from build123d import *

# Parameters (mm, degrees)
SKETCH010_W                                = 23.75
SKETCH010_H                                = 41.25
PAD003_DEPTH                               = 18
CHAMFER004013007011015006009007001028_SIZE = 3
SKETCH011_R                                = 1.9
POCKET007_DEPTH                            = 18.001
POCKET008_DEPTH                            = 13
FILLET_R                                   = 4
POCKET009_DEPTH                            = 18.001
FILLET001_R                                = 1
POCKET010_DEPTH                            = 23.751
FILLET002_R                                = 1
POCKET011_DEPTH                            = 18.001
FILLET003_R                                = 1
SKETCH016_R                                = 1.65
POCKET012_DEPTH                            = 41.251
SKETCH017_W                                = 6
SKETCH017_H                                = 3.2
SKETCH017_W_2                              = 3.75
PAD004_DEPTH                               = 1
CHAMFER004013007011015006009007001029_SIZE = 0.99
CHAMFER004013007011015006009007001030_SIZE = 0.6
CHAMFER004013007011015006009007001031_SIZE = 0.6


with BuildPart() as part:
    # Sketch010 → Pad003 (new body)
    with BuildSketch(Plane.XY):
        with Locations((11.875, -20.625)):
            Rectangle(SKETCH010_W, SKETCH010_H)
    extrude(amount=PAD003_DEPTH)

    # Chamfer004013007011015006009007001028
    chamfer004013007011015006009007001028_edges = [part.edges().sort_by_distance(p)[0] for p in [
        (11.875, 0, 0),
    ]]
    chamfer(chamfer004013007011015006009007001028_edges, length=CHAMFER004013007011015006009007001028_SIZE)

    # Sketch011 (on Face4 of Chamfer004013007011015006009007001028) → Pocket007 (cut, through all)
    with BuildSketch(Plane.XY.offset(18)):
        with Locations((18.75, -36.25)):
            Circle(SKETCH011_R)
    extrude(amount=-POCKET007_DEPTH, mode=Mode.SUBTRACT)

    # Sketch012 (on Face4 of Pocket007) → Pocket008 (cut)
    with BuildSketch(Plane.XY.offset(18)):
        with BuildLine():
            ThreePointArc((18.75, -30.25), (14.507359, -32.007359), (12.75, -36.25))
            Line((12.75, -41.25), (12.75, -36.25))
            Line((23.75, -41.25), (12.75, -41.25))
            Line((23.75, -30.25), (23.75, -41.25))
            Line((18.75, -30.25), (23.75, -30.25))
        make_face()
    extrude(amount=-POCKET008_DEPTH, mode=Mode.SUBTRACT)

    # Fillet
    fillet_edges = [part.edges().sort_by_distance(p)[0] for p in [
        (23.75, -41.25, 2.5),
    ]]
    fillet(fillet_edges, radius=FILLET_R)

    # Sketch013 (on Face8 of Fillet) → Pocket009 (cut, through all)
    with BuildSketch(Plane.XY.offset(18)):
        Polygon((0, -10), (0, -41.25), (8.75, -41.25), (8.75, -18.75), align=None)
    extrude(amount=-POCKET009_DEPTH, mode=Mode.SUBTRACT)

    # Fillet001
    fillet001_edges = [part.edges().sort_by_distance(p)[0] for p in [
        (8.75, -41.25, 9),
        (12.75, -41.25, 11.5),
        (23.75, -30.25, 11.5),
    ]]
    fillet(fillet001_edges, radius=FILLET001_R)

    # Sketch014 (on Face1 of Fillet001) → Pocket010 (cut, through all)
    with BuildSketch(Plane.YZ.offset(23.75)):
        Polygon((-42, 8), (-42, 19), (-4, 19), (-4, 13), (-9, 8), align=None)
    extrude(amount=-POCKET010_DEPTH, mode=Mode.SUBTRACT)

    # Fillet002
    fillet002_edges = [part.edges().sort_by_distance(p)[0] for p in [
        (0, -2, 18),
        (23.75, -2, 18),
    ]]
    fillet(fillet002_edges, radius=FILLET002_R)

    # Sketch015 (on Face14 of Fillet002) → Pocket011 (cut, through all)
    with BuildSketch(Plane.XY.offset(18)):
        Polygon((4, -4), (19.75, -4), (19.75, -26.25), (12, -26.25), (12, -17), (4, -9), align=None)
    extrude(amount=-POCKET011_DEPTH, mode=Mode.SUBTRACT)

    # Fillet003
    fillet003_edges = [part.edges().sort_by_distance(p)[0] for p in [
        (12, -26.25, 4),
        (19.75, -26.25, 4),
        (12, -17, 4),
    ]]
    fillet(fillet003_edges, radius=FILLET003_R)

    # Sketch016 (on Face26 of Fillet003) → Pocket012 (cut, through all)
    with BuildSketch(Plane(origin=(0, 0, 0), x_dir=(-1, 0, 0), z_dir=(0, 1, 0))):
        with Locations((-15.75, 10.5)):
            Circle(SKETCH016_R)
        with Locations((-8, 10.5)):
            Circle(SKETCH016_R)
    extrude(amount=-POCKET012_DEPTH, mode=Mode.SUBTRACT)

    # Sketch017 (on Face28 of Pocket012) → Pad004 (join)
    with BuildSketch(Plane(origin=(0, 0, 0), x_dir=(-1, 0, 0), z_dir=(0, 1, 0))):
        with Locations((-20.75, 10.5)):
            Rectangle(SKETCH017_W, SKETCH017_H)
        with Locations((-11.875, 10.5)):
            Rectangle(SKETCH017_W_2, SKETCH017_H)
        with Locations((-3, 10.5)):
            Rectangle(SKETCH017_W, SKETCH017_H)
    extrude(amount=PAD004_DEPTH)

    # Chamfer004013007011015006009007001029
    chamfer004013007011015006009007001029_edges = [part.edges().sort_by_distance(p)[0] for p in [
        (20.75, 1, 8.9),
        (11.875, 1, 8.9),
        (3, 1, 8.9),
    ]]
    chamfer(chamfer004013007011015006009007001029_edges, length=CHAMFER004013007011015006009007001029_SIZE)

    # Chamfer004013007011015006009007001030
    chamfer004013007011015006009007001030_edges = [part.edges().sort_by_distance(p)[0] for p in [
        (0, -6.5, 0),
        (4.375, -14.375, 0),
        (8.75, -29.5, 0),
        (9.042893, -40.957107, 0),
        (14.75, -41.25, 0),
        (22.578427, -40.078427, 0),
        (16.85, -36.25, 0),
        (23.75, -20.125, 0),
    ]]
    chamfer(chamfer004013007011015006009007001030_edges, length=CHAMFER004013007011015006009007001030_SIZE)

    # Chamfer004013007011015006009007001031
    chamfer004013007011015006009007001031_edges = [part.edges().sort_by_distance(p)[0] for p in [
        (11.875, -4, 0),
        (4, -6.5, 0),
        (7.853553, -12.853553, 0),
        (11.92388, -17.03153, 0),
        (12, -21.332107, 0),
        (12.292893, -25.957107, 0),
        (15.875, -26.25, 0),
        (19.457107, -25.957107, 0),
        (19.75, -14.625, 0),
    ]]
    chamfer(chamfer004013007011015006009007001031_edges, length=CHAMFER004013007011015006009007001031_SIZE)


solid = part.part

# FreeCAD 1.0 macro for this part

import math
import FreeCAD as App
import Part
import Sketcher
Q = App.Units.Quantity


def edges_at(feature, points):
    """Names of the edges that pass closest to the given points."""
    edges = feature.Shape.Edges
    near = lambda p: min(range(len(edges)), key=lambda i: edges[i].distToShape(Part.Vertex(*p))[0])
    return sorted({f"Edge{near(p) + 1}" for p in points})

doc = App.newDocument("Part")
body = doc.addObject("PartDesign::Body", "Body")

# Sketch on XY plane
sketch1 = body.newObject("Sketcher::SketchObject", "Sketch")
sketch1.AttachmentSupport = (doc.getObject("XY_Plane"), [""])
sketch1.MapMode = "FlatFace"
sketch1.addGeometry([
    Part.LineSegment(App.Vector(0, 0, 0), App.Vector(0, -41.25, 0)),
    Part.LineSegment(App.Vector(0, -41.25, 0), App.Vector(23.75, -41.25, 0)),
    Part.LineSegment(App.Vector(23.75, -41.25, 0), App.Vector(23.75, 0, 0)),
    Part.LineSegment(App.Vector(23.75, 0, 0), App.Vector(0, 0, 0)),
], False)
sketch1.addConstraint([
    Sketcher.Constraint("Coincident", 0, 2, 1, 1),
    Sketcher.Constraint("Coincident", 1, 2, 2, 1),
    Sketcher.Constraint("Coincident", 2, 2, 3, 1),
    Sketcher.Constraint("Coincident", 3, 2, 0, 1),
    Sketcher.Constraint("Vertical", 0),
    Sketcher.Constraint("Horizontal", 1),
    Sketcher.Constraint("Vertical", 2),
    Sketcher.Constraint("Horizontal", 3),
    Sketcher.Constraint("Coincident", 3, 2, -1, 1),
    Sketcher.Constraint("DistanceX", 1, 1, 1, 2, Q("23.75 mm")),
    Sketcher.Constraint("DistanceY", 0, 2, 0, 1, Q("41.25 mm")),
])
pad1 = body.newObject("PartDesign::Pad", "Pad")
pad1.Profile = sketch1
pad1.Length = 18
doc.recompute()

chamfer = body.newObject("PartDesign::Chamfer", "Chamfer")
chamfer.Base = (pad1, edges_at(pad1, [(11.875, 0, 0)]))
chamfer.Size = 3

# Sketch on XY plane
sketch2 = body.newObject("Sketcher::SketchObject", "Sketch001")
sketch2.AttachmentSupport = (doc.getObject("XY_Plane"), [""])
sketch2.MapMode = "FlatFace"
sketch2.AttachmentOffset = App.Placement(App.Vector(0, 0, 18), App.Rotation())
sketch2.addGeometry(Part.Circle(App.Vector(18.75, -36.25, 0), App.Vector(0, 0, 1), 1.9), False)
sketch2.addConstraint([
    Sketcher.Constraint("Diameter", 0, Q("3.8 mm")),
    Sketcher.Constraint("DistanceX", -1, 1, 0, 3, Q("18.75 mm")),
    Sketcher.Constraint("DistanceY", 0, 3, -1, 1, Q("36.25 mm")),
])
pocket1 = body.newObject("PartDesign::Pocket", "Pocket")
pocket1.Profile = sketch2
pocket1.Type = "ThroughAll"

# Sketch on XY plane
sketch3 = body.newObject("Sketcher::SketchObject", "Sketch002")
sketch3.AttachmentSupport = (doc.getObject("XY_Plane"), [""])
sketch3.MapMode = "FlatFace"
sketch3.AttachmentOffset = App.Placement(App.Vector(0, 0, 18), App.Rotation())
sketch3.addGeometry([
    Part.ArcOfCircle(Part.Circle(App.Vector(18.749999, -36.249999, 0), App.Vector(0, 0, 1), 5.999999), math.radians(89.99999), math.radians(180.00001)),  # 0
    Part.LineSegment(App.Vector(12.75, -36.25, 0), App.Vector(12.75, -41.25, 0)),  # 1
    Part.LineSegment(App.Vector(12.75, -41.25, 0), App.Vector(23.75, -41.25, 0)),  # 2
    Part.LineSegment(App.Vector(23.75, -41.25, 0), App.Vector(23.75, -30.25, 0)),  # 3
    Part.LineSegment(App.Vector(23.75, -30.25, 0), App.Vector(18.75, -30.25, 0)),  # 4
], False)
sketch3.addConstraint([
    Sketcher.Constraint("Tangent", 0, 2, 1, 1),
    Sketcher.Constraint("Coincident", 1, 2, 2, 1),
    Sketcher.Constraint("Coincident", 2, 2, 3, 1),
    Sketcher.Constraint("Coincident", 3, 2, 4, 1),
    Sketcher.Constraint("Tangent", 4, 2, 0, 1),
    Sketcher.Constraint("Vertical", 1),
    Sketcher.Constraint("Horizontal", 2),
    Sketcher.Constraint("Vertical", 3),
    Sketcher.Constraint("Horizontal", 4),
    Sketcher.Constraint("Equal", 4, 1),
    Sketcher.Constraint("Radius", 0, Q("5.999999 mm")),
    Sketcher.Constraint("DistanceX", 2, 1, 2, 2, Q("11 mm")),
    Sketcher.Constraint("DistanceX", -1, 1, 0, 3, Q("18.749999 mm")),
    Sketcher.Constraint("DistanceY", 0, 3, -1, 1, Q("36.249999 mm")),
])
pocket2 = body.newObject("PartDesign::Pocket", "Pocket001")
pocket2.Profile = sketch3
pocket2.Length = 13
doc.recompute()

fillet = body.newObject("PartDesign::Fillet", "Fillet")
fillet.Base = (pocket2, edges_at(pocket2, [(23.75, -41.25, 2.5)]))
fillet.Radius = 4

# Sketch on XY plane
sketch4 = body.newObject("Sketcher::SketchObject", "Sketch003")
sketch4.AttachmentSupport = (doc.getObject("XY_Plane"), [""])
sketch4.MapMode = "FlatFace"
sketch4.AttachmentOffset = App.Placement(App.Vector(0, 0, 18), App.Rotation())
sketch4.addGeometry([
    Part.LineSegment(App.Vector(0, -10, 0), App.Vector(0, -41.25, 0)),
    Part.LineSegment(App.Vector(0, -41.25, 0), App.Vector(8.75, -41.25, 0)),
    Part.LineSegment(App.Vector(8.75, -41.25, 0), App.Vector(8.75, -18.75, 0)),
    Part.LineSegment(App.Vector(8.75, -18.75, 0), App.Vector(0, -10, 0)),
], False)
sketch4.addConstraint([
    Sketcher.Constraint("Coincident", 0, 2, 1, 1),
    Sketcher.Constraint("Coincident", 1, 2, 2, 1),
    Sketcher.Constraint("Coincident", 2, 2, 3, 1),
    Sketcher.Constraint("Coincident", 3, 2, 0, 1),
    Sketcher.Constraint("Vertical", 0),
    Sketcher.Constraint("Horizontal", 1),
    Sketcher.Constraint("Vertical", 2),
    Sketcher.Constraint("PointOnObject", 0, 2, -2),
    Sketcher.Constraint("Angle", 3, Q("135 deg")),
    Sketcher.Constraint("DistanceY", 2, 1, 2, 2, Q("22.5 mm")),
    Sketcher.Constraint("DistanceY", 3, 2, -1, 1, Q("10 mm")),
    Sketcher.Constraint("DistanceX", 1, 1, 1, 2, Q("8.75 mm")),
])
pocket3 = body.newObject("PartDesign::Pocket", "Pocket002")
pocket3.Profile = sketch4
pocket3.Type = "ThroughAll"
doc.recompute()

fillet2 = body.newObject("PartDesign::Fillet", "Fillet001")
fillet2.Base = (pocket3, edges_at(pocket3, [(8.75, -41.25, 9), (12.75, -41.25, 11.5), (23.75, -30.25, 11.5)]))
fillet2.Radius = 1

# Sketch on YZ plane
sketch5 = body.newObject("Sketcher::SketchObject", "Sketch004")
sketch5.AttachmentSupport = (doc.getObject("YZ_Plane"), [""])
sketch5.MapMode = "FlatFace"
sketch5.AttachmentOffset = App.Placement(App.Vector(0, 0, 23.75), App.Rotation())
sketch5.addGeometry([
    Part.LineSegment(App.Vector(-42, 19, 0), App.Vector(-42, 8, 0)),  # 0
    Part.LineSegment(App.Vector(-42, 8, 0), App.Vector(-9, 8, 0)),  # 1
    Part.LineSegment(App.Vector(-9, 8, 0), App.Vector(-4, 13, 0)),  # 2
    Part.LineSegment(App.Vector(-4, 13, 0), App.Vector(-4, 19, 0)),  # 3
    Part.LineSegment(App.Vector(-4, 19, 0), App.Vector(-42, 19, 0)),  # 4
], False)
sketch5.addConstraint([
    Sketcher.Constraint("Coincident", 0, 2, 1, 1),
    Sketcher.Constraint("Coincident", 1, 2, 2, 1),
    Sketcher.Constraint("Coincident", 2, 2, 3, 1),
    Sketcher.Constraint("Coincident", 3, 2, 4, 1),
    Sketcher.Constraint("Coincident", 4, 2, 0, 1),
    Sketcher.Constraint("Vertical", 0),
    Sketcher.Constraint("Horizontal", 1),
    Sketcher.Constraint("Vertical", 3),
    Sketcher.Constraint("Horizontal", 4),
    Sketcher.Constraint("DistanceX", 1, 1, 1, 2, Q("33 mm")),
    Sketcher.Constraint("DistanceX", 4, 2, 4, 1, Q("38 mm")),
    Sketcher.Constraint("DistanceY", 0, 2, 0, 1, Q("11 mm")),
    Sketcher.Constraint("DistanceY", 3, 1, 3, 2, Q("6 mm")),
    Sketcher.Constraint("DistanceX", 0, 2, -1, 1, Q("42 mm")),
    Sketcher.Constraint("DistanceY", -1, 1, 0, 2, Q("8 mm")),
])
pocket4 = body.newObject("PartDesign::Pocket", "Pocket003")
pocket4.Profile = sketch5
pocket4.Type = "ThroughAll"
doc.recompute()

fillet3 = body.newObject("PartDesign::Fillet", "Fillet002")
fillet3.Base = (pocket4, edges_at(pocket4, [(0, -2, 18), (23.75, -2, 18)]))
fillet3.Radius = 1

# Sketch on XY plane
sketch6 = body.newObject("Sketcher::SketchObject", "Sketch005")
sketch6.AttachmentSupport = (doc.getObject("XY_Plane"), [""])
sketch6.MapMode = "FlatFace"
sketch6.AttachmentOffset = App.Placement(App.Vector(0, 0, 18), App.Rotation())
sketch6.addGeometry([
    Part.LineSegment(App.Vector(19.75, -4, 0), App.Vector(4, -4, 0)),  # 0
    Part.LineSegment(App.Vector(4, -4, 0), App.Vector(4, -9, 0)),  # 1
    Part.LineSegment(App.Vector(4, -9, 0), App.Vector(12, -17, 0)),  # 2
    Part.LineSegment(App.Vector(12, -17, 0), App.Vector(12, -26.25, 0)),  # 3
    Part.LineSegment(App.Vector(12, -26.25, 0), App.Vector(19.75, -26.25, 0)),  # 4
    Part.LineSegment(App.Vector(19.75, -26.25, 0), App.Vector(19.75, -4, 0)),  # 5
], False)
sketch6.addConstraint([
    Sketcher.Constraint("Coincident", 0, 2, 1, 1),
    Sketcher.Constraint("Coincident", 1, 2, 2, 1),
    Sketcher.Constraint("Coincident", 2, 2, 3, 1),
    Sketcher.Constraint("Coincident", 3, 2, 4, 1),
    Sketcher.Constraint("Coincident", 4, 2, 5, 1),
    Sketcher.Constraint("Coincident", 5, 2, 0, 1),
    Sketcher.Constraint("Horizontal", 0),
    Sketcher.Constraint("Vertical", 1),
    Sketcher.Constraint("Vertical", 3),
    Sketcher.Constraint("Horizontal", 4),
    Sketcher.Constraint("Vertical", 5),
    Sketcher.Constraint("DistanceY", 1, 2, 1, 1, Q("5 mm")),
    Sketcher.Constraint("Angle", 2, Q("-45 deg")),
    Sketcher.Constraint("DistanceX", -1, 1, 0, 2, Q("4 mm")),
    Sketcher.Constraint("DistanceY", 0, 2, -1, 1, Q("4 mm")),
    Sketcher.Constraint("DistanceX", -1, 1, 2, 2, Q("12 mm")),
    Sketcher.Constraint("DistanceX", 0, 2, 0, 1, Q("15.75 mm")),
    Sketcher.Constraint("DistanceY", 3, 2, 3, 1, Q("9.25 mm")),
])
pocket5 = body.newObject("PartDesign::Pocket", "Pocket004")
pocket5.Profile = sketch6
pocket5.Type = "ThroughAll"
doc.recompute()

fillet4 = body.newObject("PartDesign::Fillet", "Fillet003")
fillet4.Base = (pocket5, edges_at(pocket5, [(12, -26.25, 4), (19.75, -26.25, 4), (12, -17, 4)]))
fillet4.Radius = 1

# Sketch on XZ plane
sketch7 = body.newObject("Sketcher::SketchObject", "Sketch006")
sketch7.AttachmentSupport = (doc.getObject("XZ_Plane"), [""])
sketch7.MapMode = "FlatFace"
sketch7.addGeometry([
    Part.Circle(App.Vector(15.75, 10.5, 0), App.Vector(0, 0, 1), 1.65),
    Part.Circle(App.Vector(8, 10.5, 0), App.Vector(0, 0, 1), 1.65),
], False)
sketch7.addConstraint([
    Sketcher.Constraint("Equal", 0, 1),
    Sketcher.Constraint("Horizontal", 0, 3, 1, 3),
    Sketcher.Constraint("Diameter", 0, Q("3.3 mm")),
    Sketcher.Constraint("DistanceX", -1, 1, 1, 3, Q("8 mm")),
    Sketcher.Constraint("DistanceY", -1, 1, 0, 3, Q("10.5 mm")),
    Sketcher.Constraint("DistanceX", -1, 1, 0, 3, Q("15.75 mm")),
])
pocket6 = body.newObject("PartDesign::Pocket", "Pocket005")
pocket6.Profile = sketch7
pocket6.Type = "ThroughAll"
pocket6.Reversed = True

# Sketch on XZ plane
sketch8 = body.newObject("Sketcher::SketchObject", "Sketch007")
sketch8.AttachmentSupport = (doc.getObject("XZ_Plane"), [""])
sketch8.MapMode = "FlatFace"
sketch8.addGeometry([
    Part.LineSegment(App.Vector(23.75, 12.1, 0), App.Vector(23.75, 8.9, 0)),  # 0
    Part.LineSegment(App.Vector(23.75, 8.9, 0), App.Vector(17.75, 8.9, 0)),  # 1
    Part.LineSegment(App.Vector(17.75, 8.9, 0), App.Vector(17.75, 12.1, 0)),  # 2
    Part.LineSegment(App.Vector(17.75, 12.1, 0), App.Vector(23.75, 12.1, 0)),  # 3
    Part.LineSegment(App.Vector(13.75, 12.1, 0), App.Vector(13.75, 8.9, 0)),  # 4
    Part.LineSegment(App.Vector(13.75, 8.9, 0), App.Vector(10, 8.9, 0)),  # 5
    Part.LineSegment(App.Vector(10, 8.9, 0), App.Vector(10, 12.1, 0)),  # 6
    Part.LineSegment(App.Vector(10, 12.1, 0), App.Vector(13.75, 12.1, 0)),  # 7
    Part.LineSegment(App.Vector(6, 12.1, 0), App.Vector(6, 8.9, 0)),  # 8
    Part.LineSegment(App.Vector(6, 8.9, 0), App.Vector(0, 8.9, 0)),  # 9
    Part.LineSegment(App.Vector(0, 8.9, 0), App.Vector(0, 12.1, 0)),  # 10
    Part.LineSegment(App.Vector(0, 12.1, 0), App.Vector(6, 12.1, 0)),  # 11
], False)
sketch8.addConstraint([
    Sketcher.Constraint("Coincident", 0, 2, 1, 1),
    Sketcher.Constraint("Coincident", 1, 2, 2, 1),
    Sketcher.Constraint("Coincident", 2, 2, 3, 1),
    Sketcher.Constraint("Coincident", 3, 2, 0, 1),
    Sketcher.Constraint("Coincident", 4, 2, 5, 1),
    Sketcher.Constraint("Coincident", 5, 2, 6, 1),
    Sketcher.Constraint("Coincident", 6, 2, 7, 1),
    Sketcher.Constraint("Coincident", 7, 2, 4, 1),
    Sketcher.Constraint("Coincident", 8, 2, 9, 1),
    Sketcher.Constraint("Coincident", 9, 2, 10, 1),
    Sketcher.Constraint("Coincident", 10, 2, 11, 1),
    Sketcher.Constraint("Coincident", 11, 2, 8, 1),
    Sketcher.Constraint("Vertical", 0),
    Sketcher.Constraint("Horizontal", 1),
    Sketcher.Constraint("Vertical", 2),
    Sketcher.Constraint("Horizontal", 3),
    Sketcher.Constraint("Vertical", 4),
    Sketcher.Constraint("Horizontal", 5),
    Sketcher.Constraint("Vertical", 6),
    Sketcher.Constraint("Horizontal", 7),
    Sketcher.Constraint("Vertical", 8),
    Sketcher.Constraint("Horizontal", 9),
    Sketcher.Constraint("Vertical", 10),
    Sketcher.Constraint("Horizontal", 11),
    Sketcher.Constraint("PointOnObject", 9, 2, -2),
    Sketcher.Constraint("Horizontal", 1, 2, 4, 2),
    Sketcher.Constraint("Horizontal", 3, 2, 6, 2),
    Sketcher.Constraint("Horizontal", 5, 2, 8, 2),
    Sketcher.Constraint("Horizontal", 7, 2, 10, 2),
    Sketcher.Constraint("Equal", 3, 9),
    Sketcher.Constraint("DistanceX", 1, 2, 1, 1, Q("6 mm")),
    Sketcher.Constraint("DistanceY", 0, 2, 0, 1, Q("3.2 mm")),
    Sketcher.Constraint("DistanceX", -1, 1, 5, 2, Q("10 mm")),
    Sketcher.Constraint("DistanceX", 4, 2, 1, 2, Q("4 mm")),
    Sketcher.Constraint("DistanceX", 5, 2, 5, 1, Q("3.75 mm")),
    Sketcher.Constraint("DistanceY", -1, 1, 0, 2, Q("8.9 mm")),
])
pad2 = body.newObject("PartDesign::Pad", "Pad001")
pad2.Profile = sketch8
pad2.Length = 1
pad2.Reversed = True
doc.recompute()

chamfer2 = body.newObject("PartDesign::Chamfer", "Chamfer001")
chamfer2.Base = (pad2, edges_at(pad2, [(20.75, 1, 8.9), (11.875, 1, 8.9), (3, 1, 8.9)]))
chamfer2.Size = 0.99
doc.recompute()

chamfer3 = body.newObject("PartDesign::Chamfer", "Chamfer002")
chamfer3.Base = (chamfer2, edges_at(chamfer2, [
    (0, -6.5, 0),
    (4.375, -14.375, 0),
    (8.75, -29.5, 0),
    (9.043, -40.957, 0),
    (14.75, -41.25, 0),
    (22.578, -40.078, 0),
    (16.85, -36.25, 0),
    (23.75, -20.125, 0),
]))
chamfer3.Size = 0.6
doc.recompute()

chamfer4 = body.newObject("PartDesign::Chamfer", "Chamfer003")
chamfer4.Base = (chamfer3, edges_at(chamfer3, [
    (11.875, -4, 0),
    (4, -6.5, 0),
    (7.854, -12.854, 0),
    (11.924, -17.032, 0),
    (12, -21.332, 0),
    (12.293, -25.957, 0),
    (15.875, -26.25, 0),
    (19.457, -25.957, 0),
    (19.75, -14.625, 0),
]))
chamfer4.Size = 0.6

doc.recompute()
